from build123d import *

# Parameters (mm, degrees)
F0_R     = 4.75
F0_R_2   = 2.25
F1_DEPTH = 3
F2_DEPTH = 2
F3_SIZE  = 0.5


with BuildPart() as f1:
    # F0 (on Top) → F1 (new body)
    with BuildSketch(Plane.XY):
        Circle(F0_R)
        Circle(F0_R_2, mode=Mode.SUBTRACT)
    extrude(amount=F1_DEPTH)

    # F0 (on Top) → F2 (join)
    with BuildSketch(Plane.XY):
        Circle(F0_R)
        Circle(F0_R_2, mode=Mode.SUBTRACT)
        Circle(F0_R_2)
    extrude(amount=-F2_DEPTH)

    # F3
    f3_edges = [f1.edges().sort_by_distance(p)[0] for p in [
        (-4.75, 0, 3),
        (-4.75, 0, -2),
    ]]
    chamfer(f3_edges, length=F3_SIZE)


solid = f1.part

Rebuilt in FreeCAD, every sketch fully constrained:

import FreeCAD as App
import Part
import Sketcher
from FreeCAD import Vector


def edges_at(feature, points):
    """Names of the edges that pass closest to the given points."""
    edges = feature.Shape.Edges
    near = lambda p: min(range(len(edges)), key=lambda i: edges[i].distToShape(Part.Vertex(*p))[0])
    return sorted({f"Edge{near(p) + 1}" for p in points})

doc = App.newDocument("Part")
params = doc.addObject("Spreadsheet::Sheet", "Params")
for row, (alias, value) in enumerate([
    ("sketch1_diameter", "9.5 mm"),
    ("sketch1_diameter2", "4.5 mm"),
    ("pad1_length", "3 mm"),
    ("sketch2_diameter", "9.5 mm"),
    ("pad2_length", "2 mm"),
    ("chamfer_size", "0.5 mm"),
], start=1):
    params.set(f"A{row}", alias)
    params.set(f"B{row}", "=" + value)
    params.setAlias(f"B{row}", alias)

body = doc.addObject("PartDesign::Body", "Body")

# Sketch on XY plane
sketch1 = body.newObject("Sketcher::SketchObject", "Sketch")
sketch1.AttachmentSupport = (doc.getObject("XY_Plane"), [""])
sketch1.MapMode = "FlatFace"
sketch1.addGeometry(Part.Circle(Vector(0, 0, 0), Vector(0, 0, 1), 4.8), False)
sketch1.addGeometry(Part.Circle(Vector(0, 0, 0), Vector(0, 0, 1), 2.2), False)
sketch1.addConstraint(Sketcher.Constraint("Coincident", 0, 3, -1, 1))
sketch1.addConstraint(Sketcher.Constraint("Coincident", 1, 3, -1, 1))
sketch1.addConstraint(Sketcher.Constraint("Diameter", 0, 9.5))
sketch1.addConstraint(Sketcher.Constraint("Diameter", 1, 4.5))
sketch1.setExpression("Constraints[2]", "Params.sketch1_diameter")
sketch1.setExpression("Constraints[3]", "Params.sketch1_diameter2")
pad1 = body.newObject("PartDesign::Pad", "Pad")
pad1.Profile = sketch1
pad1.setExpression("Length", "Params.pad1_length")

# Sketch on XY plane
sketch2 = body.newObject("Sketcher::SketchObject", "Sketch001")
sketch2.AttachmentSupport = (doc.getObject("XY_Plane"), [""])
sketch2.MapMode = "FlatFace"
sketch2.addGeometry(Part.Circle(Vector(0, 0, 0), Vector(0, 0, 1), 4.8), False)
sketch2.addConstraint(Sketcher.Constraint("Coincident", 0, 3, -1, 1))
sketch2.addConstraint(Sketcher.Constraint("Diameter", 0, 9.5))
sketch2.setExpression("Constraints[1]", "Params.sketch2_diameter")
pad2 = body.newObject("PartDesign::Pad", "Pad001")
pad2.Profile = sketch2
pad2.setExpression("Length", "Params.pad2_length")
pad2.Reversed = True
doc.recompute()

chamfer = body.newObject("PartDesign::Chamfer", "Chamfer")
chamfer.Base = (pad2, edges_at(pad2, [(-4.75, 0, 3), (-4.75, 0, -2)]))
chamfer.setExpression("Size", "Params.chamfer_size")

doc.recompute()
